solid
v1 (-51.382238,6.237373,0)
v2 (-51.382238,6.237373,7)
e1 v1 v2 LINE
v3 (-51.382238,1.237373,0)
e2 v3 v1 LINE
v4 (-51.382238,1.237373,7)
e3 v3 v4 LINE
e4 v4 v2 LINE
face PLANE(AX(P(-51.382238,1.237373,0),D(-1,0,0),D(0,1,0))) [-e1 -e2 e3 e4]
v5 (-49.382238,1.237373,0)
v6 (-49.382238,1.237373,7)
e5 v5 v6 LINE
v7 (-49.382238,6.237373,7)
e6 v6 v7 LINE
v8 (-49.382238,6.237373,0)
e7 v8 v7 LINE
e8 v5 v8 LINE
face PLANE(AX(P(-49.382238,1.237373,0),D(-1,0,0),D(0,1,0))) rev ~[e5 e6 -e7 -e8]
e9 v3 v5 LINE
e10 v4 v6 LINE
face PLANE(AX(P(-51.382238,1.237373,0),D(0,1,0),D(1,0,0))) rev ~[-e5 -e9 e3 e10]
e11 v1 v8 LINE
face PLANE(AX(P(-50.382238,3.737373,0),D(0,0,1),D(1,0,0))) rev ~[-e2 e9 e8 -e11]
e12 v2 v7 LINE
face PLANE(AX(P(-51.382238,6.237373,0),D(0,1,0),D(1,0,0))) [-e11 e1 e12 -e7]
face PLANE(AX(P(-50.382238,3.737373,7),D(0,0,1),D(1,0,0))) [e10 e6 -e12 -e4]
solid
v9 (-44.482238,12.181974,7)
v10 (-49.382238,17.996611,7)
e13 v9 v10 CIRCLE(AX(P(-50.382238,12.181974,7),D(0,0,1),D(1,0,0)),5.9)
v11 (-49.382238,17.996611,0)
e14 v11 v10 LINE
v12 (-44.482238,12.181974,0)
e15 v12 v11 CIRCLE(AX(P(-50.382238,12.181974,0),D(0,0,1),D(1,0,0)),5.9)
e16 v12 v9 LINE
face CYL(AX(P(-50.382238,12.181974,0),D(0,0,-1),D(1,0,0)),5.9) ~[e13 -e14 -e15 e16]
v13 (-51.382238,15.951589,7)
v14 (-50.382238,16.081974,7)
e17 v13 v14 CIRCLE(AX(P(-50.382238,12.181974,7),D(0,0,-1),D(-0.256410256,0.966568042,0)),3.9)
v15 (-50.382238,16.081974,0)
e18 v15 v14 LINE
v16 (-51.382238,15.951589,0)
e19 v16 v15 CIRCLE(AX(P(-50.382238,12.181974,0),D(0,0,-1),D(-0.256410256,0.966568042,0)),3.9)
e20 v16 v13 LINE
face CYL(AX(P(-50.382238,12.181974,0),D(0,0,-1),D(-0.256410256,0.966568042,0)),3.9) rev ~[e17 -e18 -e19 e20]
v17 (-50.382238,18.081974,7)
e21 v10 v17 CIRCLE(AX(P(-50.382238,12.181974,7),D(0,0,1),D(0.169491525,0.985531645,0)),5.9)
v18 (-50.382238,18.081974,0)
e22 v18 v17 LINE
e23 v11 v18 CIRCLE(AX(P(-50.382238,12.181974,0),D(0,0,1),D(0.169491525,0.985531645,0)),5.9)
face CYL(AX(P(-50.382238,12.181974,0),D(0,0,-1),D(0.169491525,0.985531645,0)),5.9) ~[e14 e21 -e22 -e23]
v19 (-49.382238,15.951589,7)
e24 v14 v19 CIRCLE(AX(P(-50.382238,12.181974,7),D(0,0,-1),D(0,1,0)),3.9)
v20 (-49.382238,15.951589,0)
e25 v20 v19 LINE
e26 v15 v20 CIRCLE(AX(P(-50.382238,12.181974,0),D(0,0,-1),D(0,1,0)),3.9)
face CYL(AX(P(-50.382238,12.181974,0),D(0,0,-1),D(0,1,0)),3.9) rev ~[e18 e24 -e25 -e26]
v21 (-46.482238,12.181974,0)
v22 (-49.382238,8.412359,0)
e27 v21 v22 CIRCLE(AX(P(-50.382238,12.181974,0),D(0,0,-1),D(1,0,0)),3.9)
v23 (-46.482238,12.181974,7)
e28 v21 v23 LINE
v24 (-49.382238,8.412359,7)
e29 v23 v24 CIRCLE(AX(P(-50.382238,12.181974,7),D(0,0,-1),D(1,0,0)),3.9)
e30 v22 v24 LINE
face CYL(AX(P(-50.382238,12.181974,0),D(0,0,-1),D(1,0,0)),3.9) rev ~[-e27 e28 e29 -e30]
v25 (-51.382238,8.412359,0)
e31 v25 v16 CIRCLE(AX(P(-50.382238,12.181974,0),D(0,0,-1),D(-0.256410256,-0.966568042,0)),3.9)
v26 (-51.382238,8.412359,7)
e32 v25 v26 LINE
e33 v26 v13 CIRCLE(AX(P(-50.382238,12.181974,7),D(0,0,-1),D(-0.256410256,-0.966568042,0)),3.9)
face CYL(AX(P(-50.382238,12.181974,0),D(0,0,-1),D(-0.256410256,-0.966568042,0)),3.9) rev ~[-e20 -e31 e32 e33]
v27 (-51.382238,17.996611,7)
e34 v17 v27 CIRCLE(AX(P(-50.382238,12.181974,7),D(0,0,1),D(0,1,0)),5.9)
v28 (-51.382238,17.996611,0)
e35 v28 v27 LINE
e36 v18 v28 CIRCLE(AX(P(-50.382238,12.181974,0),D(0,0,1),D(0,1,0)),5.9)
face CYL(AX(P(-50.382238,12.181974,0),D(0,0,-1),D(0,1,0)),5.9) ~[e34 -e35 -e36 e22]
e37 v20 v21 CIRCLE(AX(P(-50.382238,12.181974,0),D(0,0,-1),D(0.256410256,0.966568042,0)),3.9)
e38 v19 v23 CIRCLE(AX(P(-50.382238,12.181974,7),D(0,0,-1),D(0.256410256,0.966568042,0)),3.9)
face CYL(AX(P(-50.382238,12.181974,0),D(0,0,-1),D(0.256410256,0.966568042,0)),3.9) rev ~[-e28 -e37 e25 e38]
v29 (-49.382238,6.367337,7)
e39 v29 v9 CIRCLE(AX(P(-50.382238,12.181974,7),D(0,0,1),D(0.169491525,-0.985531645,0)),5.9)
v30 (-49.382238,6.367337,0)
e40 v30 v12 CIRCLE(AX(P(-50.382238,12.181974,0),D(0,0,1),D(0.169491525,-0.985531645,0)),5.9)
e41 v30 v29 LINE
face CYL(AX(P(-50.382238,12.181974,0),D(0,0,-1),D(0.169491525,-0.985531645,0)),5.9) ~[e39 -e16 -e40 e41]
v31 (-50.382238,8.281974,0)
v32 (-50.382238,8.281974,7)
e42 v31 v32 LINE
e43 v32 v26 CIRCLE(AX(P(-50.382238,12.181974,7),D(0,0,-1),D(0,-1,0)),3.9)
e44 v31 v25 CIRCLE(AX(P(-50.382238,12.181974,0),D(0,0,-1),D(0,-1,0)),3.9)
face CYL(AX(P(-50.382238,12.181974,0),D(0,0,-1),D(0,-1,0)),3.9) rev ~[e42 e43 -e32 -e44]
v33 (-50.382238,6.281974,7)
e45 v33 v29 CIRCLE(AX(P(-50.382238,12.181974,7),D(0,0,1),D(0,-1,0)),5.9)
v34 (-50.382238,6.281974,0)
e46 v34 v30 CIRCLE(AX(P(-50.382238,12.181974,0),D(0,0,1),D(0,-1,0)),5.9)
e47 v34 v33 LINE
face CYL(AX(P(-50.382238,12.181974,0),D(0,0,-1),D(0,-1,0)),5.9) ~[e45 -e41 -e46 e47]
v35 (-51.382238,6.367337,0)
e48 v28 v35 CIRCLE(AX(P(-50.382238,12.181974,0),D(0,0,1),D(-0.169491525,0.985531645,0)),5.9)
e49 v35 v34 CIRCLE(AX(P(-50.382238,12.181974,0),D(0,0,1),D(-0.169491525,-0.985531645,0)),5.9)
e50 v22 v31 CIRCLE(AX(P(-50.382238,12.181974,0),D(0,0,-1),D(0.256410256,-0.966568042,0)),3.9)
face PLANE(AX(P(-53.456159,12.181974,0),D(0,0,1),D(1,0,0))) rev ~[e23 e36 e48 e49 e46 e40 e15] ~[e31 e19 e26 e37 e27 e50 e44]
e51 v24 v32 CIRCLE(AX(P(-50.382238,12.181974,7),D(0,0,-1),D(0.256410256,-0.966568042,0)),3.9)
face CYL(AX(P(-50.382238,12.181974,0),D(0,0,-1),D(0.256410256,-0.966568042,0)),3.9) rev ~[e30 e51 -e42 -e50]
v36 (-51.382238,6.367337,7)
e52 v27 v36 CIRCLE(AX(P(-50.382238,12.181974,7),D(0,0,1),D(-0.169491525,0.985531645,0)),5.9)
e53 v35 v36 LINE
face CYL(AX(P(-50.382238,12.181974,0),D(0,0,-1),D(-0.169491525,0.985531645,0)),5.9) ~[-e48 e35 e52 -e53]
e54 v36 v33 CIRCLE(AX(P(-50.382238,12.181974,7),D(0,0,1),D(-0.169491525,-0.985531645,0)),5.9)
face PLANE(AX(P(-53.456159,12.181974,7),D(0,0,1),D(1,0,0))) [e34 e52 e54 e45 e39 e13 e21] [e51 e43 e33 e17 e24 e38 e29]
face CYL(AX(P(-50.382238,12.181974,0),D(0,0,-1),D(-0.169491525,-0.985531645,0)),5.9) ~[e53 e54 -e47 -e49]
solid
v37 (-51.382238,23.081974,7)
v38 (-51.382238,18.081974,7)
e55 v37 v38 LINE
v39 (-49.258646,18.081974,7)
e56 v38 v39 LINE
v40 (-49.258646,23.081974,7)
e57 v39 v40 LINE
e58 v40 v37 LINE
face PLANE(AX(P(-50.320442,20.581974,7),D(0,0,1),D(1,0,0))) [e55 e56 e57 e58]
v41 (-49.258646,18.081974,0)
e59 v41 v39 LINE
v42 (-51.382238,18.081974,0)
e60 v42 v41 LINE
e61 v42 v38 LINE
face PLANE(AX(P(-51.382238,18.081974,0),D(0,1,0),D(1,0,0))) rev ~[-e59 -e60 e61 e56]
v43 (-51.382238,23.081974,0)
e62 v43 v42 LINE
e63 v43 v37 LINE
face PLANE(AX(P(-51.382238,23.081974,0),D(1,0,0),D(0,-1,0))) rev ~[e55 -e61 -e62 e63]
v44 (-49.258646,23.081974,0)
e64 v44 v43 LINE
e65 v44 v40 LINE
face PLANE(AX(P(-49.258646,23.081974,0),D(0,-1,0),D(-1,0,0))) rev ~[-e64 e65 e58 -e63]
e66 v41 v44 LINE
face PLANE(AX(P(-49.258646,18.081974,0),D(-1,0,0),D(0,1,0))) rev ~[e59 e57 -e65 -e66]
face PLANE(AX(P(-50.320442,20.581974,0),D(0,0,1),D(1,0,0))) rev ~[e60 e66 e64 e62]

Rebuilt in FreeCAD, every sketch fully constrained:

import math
import FreeCAD as App
import Part
import Sketcher
Q = App.Units.Quantity

doc = App.newDocument("Part")
body = doc.addObject("PartDesign::Body", "Body")

# Sketch on XY plane
sketch1 = body.newObject("Sketcher::SketchObject", "Sketch")
sketch1.AttachmentSupport = (doc.getObject("XY_Plane"), [""])
sketch1.MapMode = "FlatFace"
sketch1.addGeometry(Part.ArcOfCircle(Part.Circle(App.Vector(-50.382238, 12.181974, 0), App.Vector(0, 0, 1), 5.9), math.radians(-80.241743), math.radians(0)), False)
sketch1.addGeometry(Part.ArcOfCircle(Part.Circle(App.Vector(-50.382238, 12.181974, 0), App.Vector(0, 0, 1), 5.9), math.radians(0), math.radians(80.241743)), False)
sketch1.addGeometry(Part.ArcOfCircle(Part.Circle(App.Vector(-50.382238, 12.181974, 0), App.Vector(0, 0, 1), 5.9), math.radians(80.241743), math.radians(90)), False)
sketch1.addGeometry(Part.ArcOfCircle(Part.Circle(App.Vector(-50.382238, 12.181974, 0), App.Vector(0, 0, 1), 5.9), math.radians(90), math.radians(99.758257)), False)
sketch1.addGeometry(Part.ArcOfCircle(Part.Circle(App.Vector(-50.382238, 12.181974, 0), App.Vector(0, 0, 1), 5.9), math.radians(99.758257), math.radians(260.241743)), False)
sketch1.addGeometry(Part.ArcOfCircle(Part.Circle(App.Vector(-50.382238, 12.181974, 0), App.Vector(0, 0, 1), 5.9), math.radians(-99.758257), math.radians(-90)), False)
sketch1.addGeometry(Part.ArcOfCircle(Part.Circle(App.Vector(-50.382238, 12.181974, 0), App.Vector(0, 0, 1), 5.9), math.radians(-90), math.radians(-80.241743)), False)
sketch1.addGeometry(Part.ArcOfCircle(Part.Circle(App.Vector(-50.382238, 12.181974, 0), App.Vector(0, 0, 1), 3.9), math.radians(104.857166), math.radians(255.142834)), False)
sketch1.addGeometry(Part.ArcOfCircle(Part.Circle(App.Vector(-50.382238, 12.181974, 0), App.Vector(0, 0, 1), 3.9), math.radians(90), math.radians(104.857166)), False)
sketch1.addGeometry(Part.ArcOfCircle(Part.Circle(App.Vector(-50.382238, 12.181974, 0), App.Vector(0, 0, 1), 3.9), math.radians(75.142834), math.radians(90)), False)
sketch1.addGeometry(Part.ArcOfCircle(Part.Circle(App.Vector(-50.382238, 12.181974, 0), App.Vector(0, 0, 1), 3.9), math.radians(0), math.radians(75.142834)), False)
sketch1.addGeometry(Part.ArcOfCircle(Part.Circle(App.Vector(-50.382238, 12.181974, 0), App.Vector(0, 0, 1), 3.9), math.radians(-75.142834), math.radians(0)), False)
sketch1.addGeometry(Part.ArcOfCircle(Part.Circle(App.Vector(-50.382238, 12.181974, 0), App.Vector(0, 0, 1), 3.9), math.radians(-90), math.radians(-75.142834)), False)
sketch1.addGeometry(Part.ArcOfCircle(Part.Circle(App.Vector(-50.382238, 12.181974, 0), App.Vector(0, 0, 1), 3.9), math.radians(-104.857166), math.radians(-90)), False)
sketch1.addConstraint(Sketcher.Constraint("Tangent", 0, 2, 1, 1))
sketch1.addConstraint(Sketcher.Constraint("Tangent", 1, 2, 2, 1))
sketch1.addConstraint(Sketcher.Constraint("Tangent", 2, 2, 3, 1))
sketch1.addConstraint(Sketcher.Constraint("Tangent", 3, 2, 4, 1))
sketch1.addConstraint(Sketcher.Constraint("Tangent", 4, 2, 5, 1))
sketch1.addConstraint(Sketcher.Constraint("Tangent", 5, 2, 6, 1))
sketch1.addConstraint(Sketcher.Constraint("Tangent", 6, 2, 0, 1))
sketch1.addConstraint(Sketcher.Constraint("Tangent", 7, 1, 8, 2))
sketch1.addConstraint(Sketcher.Constraint("Tangent", 8, 1, 9, 2))
sketch1.addConstraint(Sketcher.Constraint("Tangent", 9, 1, 10, 2))
sketch1.addConstraint(Sketcher.Constraint("Tangent", 10, 1, 11, 2))
sketch1.addConstraint(Sketcher.Constraint("Tangent", 11, 1, 12, 2))
sketch1.addConstraint(Sketcher.Constraint("Tangent", 12, 1, 13, 2))
sketch1.addConstraint(Sketcher.Constraint("Tangent", 13, 1, 7, 2))
sketch1.addConstraint(Sketcher.Constraint("Coincident", 2, 3, 0, 3))
sketch1.addConstraint(Sketcher.Constraint("Coincident", 4, 3, 0, 3))
sketch1.addConstraint(Sketcher.Constraint("Coincident", 7, 3, 0, 3))
sketch1.addConstraint(Sketcher.Constraint("Coincident", 9, 3, 0, 3))
sketch1.addConstraint(Sketcher.Constraint("Coincident", 11, 3, 0, 3))
sketch1.addConstraint(Sketcher.Constraint("Horizontal", 13, 3, 0, 2))
sketch1.addConstraint(Sketcher.Constraint("Horizontal", 1, 2, 3, 2))
sketch1.addConstraint(Sketcher.Constraint("Horizontal", 4, 2, 6, 2))
sketch1.addConstraint(Sketcher.Constraint("Horizontal", 7, 1, 9, 1))
sketch1.addConstraint(Sketcher.Constraint("Horizontal", 0, 2, 10, 1))
sketch1.addConstraint(Sketcher.Constraint("Horizontal", 11, 1, 13, 1))
sketch1.addConstraint(Sketcher.Constraint("Vertical", 13, 3, 2, 2))
sketch1.addConstraint(Sketcher.Constraint("Vertical", 3, 2, 4, 2))
sketch1.addConstraint(Sketcher.Constraint("Vertical", 2, 2, 5, 2))
sketch1.addConstraint(Sketcher.Constraint("Vertical", 4, 2, 7, 1))
sketch1.addConstraint(Sketcher.Constraint("Vertical", 5, 2, 8, 1))
sketch1.addConstraint(Sketcher.Constraint("Vertical", 9, 1, 11, 1))
sketch1.addConstraint(Sketcher.Constraint("Vertical", 8, 1, 12, 1))
sketch1.addConstraint(Sketcher.Constraint("Radius", 0, Q("5.9 mm")))
sketch1.addConstraint(Sketcher.Constraint("Radius", 7, Q("3.9 mm")))
sketch1.addConstraint(Sketcher.Constraint("DistanceX", 3, 3, 1, 2, Q("1 mm")))
sketch1.addConstraint(Sketcher.Constraint("DistanceY", -1, 1, 1, 2, Q("17.996611 mm")))
sketch1.addConstraint(Sketcher.Constraint("DistanceX", 0, 3, -1, 1, Q("50.382238 mm")))
pad1 = body.newObject("PartDesign::Pad", "Pad")
pad1.Profile = sketch1
pad1.Length = 7
body2 = doc.addObject("PartDesign::Body", "Body001")

# Sketch on XY plane
sketch2 = body2.newObject("Sketcher::SketchObject", "Sketch001")
sketch2.AttachmentSupport = (doc.getObject("XY_Plane001"), [""])
sketch2.MapMode = "FlatFace"
sketch2.addGeometry(Part.LineSegment(App.Vector(-51.382238, 18.081974, 0), App.Vector(-49.258646, 18.081974, 0)), False)
sketch2.addGeometry(Part.LineSegment(App.Vector(-49.258646, 18.081974, 0), App.Vector(-49.258646, 23.081974, 0)), False)
sketch2.addGeometry(Part.LineSegment(App.Vector(-49.258646, 23.081974, 0), App.Vector(-51.382238, 23.081974, 0)), False)
sketch2.addGeometry(Part.LineSegment(App.Vector(-51.382238, 23.081974, 0), App.Vector(-51.382238, 18.081974, 0)), False)
sketch2.addConstraint(Sketcher.Constraint("Coincident", 0, 2, 1, 1))
sketch2.addConstraint(Sketcher.Constraint("Coincident", 1, 2, 2, 1))
sketch2.addConstraint(Sketcher.Constraint("Coincident", 2, 2, 3, 1))
sketch2.addConstraint(Sketcher.Constraint("Coincident", 3, 2, 0, 1))
sketch2.addConstraint(Sketcher.Constraint("Horizontal", 0))
sketch2.addConstraint(Sketcher.Constraint("Vertical", 1))
sketch2.addConstraint(Sketcher.Constraint("Horizontal", 2))
sketch2.addConstraint(Sketcher.Constraint("Vertical", 3))
sketch2.addConstraint(Sketcher.Constraint("DistanceY", 1, 1, 1, 2, Q("5 mm")))
sketch2.addConstraint(Sketcher.Constraint("DistanceX", 0, 1, 0, 2, Q("2.123592 mm")))
sketch2.addConstraint(Sketcher.Constraint("DistanceX", 0, 2, -1, 1, Q("49.258646 mm")))
sketch2.addConstraint(Sketcher.Constraint("DistanceY", -1, 1, 0, 2, Q("18.081974 mm")))
pad2 = body2.newObject("PartDesign::Pad", "Pad001")
pad2.Profile = sketch2
pad2.Length = 7
body3 = doc.addObject("PartDesign::Body", "Body002")

# Sketch on XY plane
sketch3 = body3.newObject("Sketcher::SketchObject", "Sketch002")
sketch3.AttachmentSupport = (doc.getObject("XY_Plane002"), [""])
sketch3.MapMode = "FlatFace"
sketch3.addGeometry(Part.LineSegment(App.Vector(-51.382238, 6.237373, 0), App.Vector(-51.382238, 1.237373, 0)), False)
sketch3.addGeometry(Part.LineSegment(App.Vector(-51.382238, 1.237373, 0), App.Vector(-49.382238, 1.237373, 0)), False)
sketch3.addGeometry(Part.LineSegment(App.Vector(-49.382238, 1.237373, 0), App.Vector(-49.382238, 6.237373, 0)), False)
sketch3.addGeometry(Part.LineSegment(App.Vector(-49.382238, 6.237373, 0), App.Vector(-51.382238, 6.237373, 0)), False)
sketch3.addConstraint(Sketcher.Constraint("Coincident", 0, 2, 1, 1))
sketch3.addConstraint(Sketcher.Constraint("Coincident", 1, 2, 2, 1))
sketch3.addConstraint(Sketcher.Constraint("Coincident", 2, 2, 3, 1))
sketch3.addConstraint(Sketcher.Constraint("Coincident", 3, 2, 0, 1))
sketch3.addConstraint(Sketcher.Constraint("Vertical", 0))
sketch3.addConstraint(Sketcher.Constraint("Horizontal", 1))
sketch3.addConstraint(Sketcher.Constraint("Vertical", 2))
sketch3.addConstraint(Sketcher.Constraint("Horizontal", 3))
sketch3.addConstraint(Sketcher.Constraint("DistanceX", 1, 1, 1, 2, Q("2 mm")))
sketch3.addConstraint(Sketcher.Constraint("DistanceY", 0, 2, 0, 1, Q("5 mm")))
sketch3.addConstraint(Sketcher.Constraint("DistanceX", 0, 2, -1, 1, Q("51.382238 mm")))
sketch3.addConstraint(Sketcher.Constraint("DistanceY", -1, 1, 0, 2, Q("1.237373 mm")))
pad3 = body3.newObject("PartDesign::Pad", "Pad002")
pad3.Profile = sketch3
pad3.Length = 7

doc.recompute()
